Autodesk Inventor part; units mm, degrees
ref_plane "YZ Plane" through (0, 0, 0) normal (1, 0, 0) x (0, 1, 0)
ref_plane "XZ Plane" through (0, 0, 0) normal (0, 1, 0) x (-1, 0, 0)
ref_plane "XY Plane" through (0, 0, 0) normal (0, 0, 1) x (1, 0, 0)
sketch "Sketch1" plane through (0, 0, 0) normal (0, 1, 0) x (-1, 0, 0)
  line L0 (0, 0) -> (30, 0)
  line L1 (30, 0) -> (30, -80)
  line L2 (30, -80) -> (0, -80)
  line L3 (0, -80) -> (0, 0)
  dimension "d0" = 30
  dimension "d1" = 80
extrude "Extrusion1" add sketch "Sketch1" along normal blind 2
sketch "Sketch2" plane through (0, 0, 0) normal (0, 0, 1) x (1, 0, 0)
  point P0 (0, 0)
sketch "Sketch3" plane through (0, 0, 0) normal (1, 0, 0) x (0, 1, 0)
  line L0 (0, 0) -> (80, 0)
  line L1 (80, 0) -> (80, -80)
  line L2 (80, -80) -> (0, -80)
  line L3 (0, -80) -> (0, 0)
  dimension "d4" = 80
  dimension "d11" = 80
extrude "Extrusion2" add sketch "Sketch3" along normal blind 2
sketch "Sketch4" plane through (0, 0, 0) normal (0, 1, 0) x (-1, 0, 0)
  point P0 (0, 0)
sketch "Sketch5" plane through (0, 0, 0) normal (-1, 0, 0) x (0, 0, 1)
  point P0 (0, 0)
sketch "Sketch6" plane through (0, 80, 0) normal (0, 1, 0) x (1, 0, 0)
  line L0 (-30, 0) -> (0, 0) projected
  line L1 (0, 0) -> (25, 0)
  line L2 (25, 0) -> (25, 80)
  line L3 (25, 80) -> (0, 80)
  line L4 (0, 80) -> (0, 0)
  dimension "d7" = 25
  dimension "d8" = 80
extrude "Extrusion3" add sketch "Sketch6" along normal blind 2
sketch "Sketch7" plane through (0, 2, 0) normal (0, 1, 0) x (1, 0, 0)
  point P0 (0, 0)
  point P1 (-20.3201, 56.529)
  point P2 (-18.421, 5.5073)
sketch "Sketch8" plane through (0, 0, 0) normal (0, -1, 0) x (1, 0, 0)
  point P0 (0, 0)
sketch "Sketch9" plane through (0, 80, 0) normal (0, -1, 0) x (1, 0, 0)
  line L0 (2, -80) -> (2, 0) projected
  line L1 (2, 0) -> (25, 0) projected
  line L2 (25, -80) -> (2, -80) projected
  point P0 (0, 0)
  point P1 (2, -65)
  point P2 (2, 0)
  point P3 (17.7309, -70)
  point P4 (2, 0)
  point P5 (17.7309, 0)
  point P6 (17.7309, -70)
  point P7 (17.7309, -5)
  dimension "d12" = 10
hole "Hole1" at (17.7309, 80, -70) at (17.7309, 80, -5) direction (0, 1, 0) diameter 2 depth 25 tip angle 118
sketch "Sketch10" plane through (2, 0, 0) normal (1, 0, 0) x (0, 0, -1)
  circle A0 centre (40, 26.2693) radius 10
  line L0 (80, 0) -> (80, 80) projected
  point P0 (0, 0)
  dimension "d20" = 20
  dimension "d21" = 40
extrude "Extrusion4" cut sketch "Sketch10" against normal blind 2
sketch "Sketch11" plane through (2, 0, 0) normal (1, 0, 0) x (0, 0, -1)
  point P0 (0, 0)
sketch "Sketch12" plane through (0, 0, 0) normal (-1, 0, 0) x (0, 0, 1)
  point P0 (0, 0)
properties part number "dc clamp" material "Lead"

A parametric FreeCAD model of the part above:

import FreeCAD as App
import Part
import Sketcher
Q = App.Units.Quantity

doc = App.newDocument("Part")
body = doc.addObject("PartDesign::Body", "Body")

# Sketch on XZ plane
sketch1 = body.newObject("Sketcher::SketchObject", "Sketch")
sketch1.AttachmentSupport = (doc.getObject("XZ_Plane"), [""])
sketch1.MapMode = "FlatFace"
sketch1.addGeometry([
    Part.LineSegment(App.Vector(-30, 0, 0), App.Vector(0, 0, 0)),
    Part.LineSegment(App.Vector(0, 0, 0), App.Vector(0, -80, 0)),
    Part.LineSegment(App.Vector(0, -80, 0), App.Vector(-30, -80, 0)),
    Part.LineSegment(App.Vector(-30, -80, 0), App.Vector(-30, 0, 0)),
], False)
sketch1.addConstraint([
    Sketcher.Constraint("Coincident", 0, 2, 1, 1),
    Sketcher.Constraint("Coincident", 1, 2, 2, 1),
    Sketcher.Constraint("Coincident", 2, 2, 3, 1),
    Sketcher.Constraint("Coincident", 3, 2, 0, 1),
    Sketcher.Constraint("Horizontal", 0),
    Sketcher.Constraint("Vertical", 1),
    Sketcher.Constraint("Horizontal", 2),
    Sketcher.Constraint("Vertical", 3),
    Sketcher.Constraint("Coincident", 0, 2, -1, 1),
    Sketcher.Constraint("DistanceX", 0, 1, 0, 2, Q("30 mm")),
    Sketcher.Constraint("DistanceY", 1, 2, 1, 1, Q("80 mm")),
])
pad1 = body.newObject("PartDesign::Pad", "Pad")
pad1.Profile = sketch1
pad1.Length = 2
pad1.Reversed = True

# Sketch on YZ plane
sketch2 = body.newObject("Sketcher::SketchObject", "Sketch001")
sketch2.AttachmentSupport = (doc.getObject("YZ_Plane"), [""])
sketch2.MapMode = "FlatFace"
sketch2.addGeometry([
    Part.LineSegment(App.Vector(80, 0, 0), App.Vector(0, 0, 0)),
    Part.LineSegment(App.Vector(0, 0, 0), App.Vector(0, -80, 0)),
    Part.LineSegment(App.Vector(0, -80, 0), App.Vector(80, -80, 0)),
    Part.LineSegment(App.Vector(80, -80, 0), App.Vector(80, 0, 0)),
], False)
sketch2.addConstraint([
    Sketcher.Constraint("Coincident", 0, 2, 1, 1),
    Sketcher.Constraint("Coincident", 1, 2, 2, 1),
    Sketcher.Constraint("Coincident", 2, 2, 3, 1),
    Sketcher.Constraint("Coincident", 3, 2, 0, 1),
    Sketcher.Constraint("Horizontal", 0),
    Sketcher.Constraint("Vertical", 1),
    Sketcher.Constraint("Horizontal", 2),
    Sketcher.Constraint("Vertical", 3),
    Sketcher.Constraint("Coincident", 0, 2, -1, 1),
    Sketcher.Constraint("Equal", 2, 1),
    Sketcher.Constraint("DistanceX", 0, 2, 0, 1, Q("80 mm")),
])
pad2 = body.newObject("PartDesign::Pad", "Pad001")
pad2.Profile = sketch2
pad2.Length = 2

# Sketch on XZ plane
sketch3 = body.newObject("Sketcher::SketchObject", "Sketch002")
sketch3.AttachmentSupport = (doc.getObject("XZ_Plane"), [""])
sketch3.MapMode = "FlatFace"
sketch3.AttachmentOffset = App.Placement(App.Vector(0, 0, -80), App.Rotation())
sketch3.addGeometry([
    Part.LineSegment(App.Vector(0, -80, 0), App.Vector(0, 0, 0)),
    Part.LineSegment(App.Vector(0, 0, 0), App.Vector(25, 0, 0)),
    Part.LineSegment(App.Vector(25, 0, 0), App.Vector(25, -80, 0)),
    Part.LineSegment(App.Vector(25, -80, 0), App.Vector(0, -80, 0)),
], False)
sketch3.addConstraint([
    Sketcher.Constraint("Coincident", 0, 2, 1, 1),
    Sketcher.Constraint("Coincident", 1, 2, 2, 1),
    Sketcher.Constraint("Coincident", 2, 2, 3, 1),
    Sketcher.Constraint("Coincident", 3, 2, 0, 1),
    Sketcher.Constraint("Vertical", 0),
    Sketcher.Constraint("Horizontal", 1),
    Sketcher.Constraint("Vertical", 2),
    Sketcher.Constraint("Horizontal", 3),
    Sketcher.Constraint("Coincident", 0, 2, -1, 1),
    Sketcher.Constraint("DistanceX", 1, 1, 1, 2, Q("25 mm")),
    Sketcher.Constraint("DistanceY", 0, 1, 0, 2, Q("80 mm")),
])
pad3 = body.newObject("PartDesign::Pad", "Pad002")
pad3.Profile = sketch3
pad3.Length = 2
pad3.Reversed = True

# Sketch on XZ plane
sketch4 = body.newObject("Sketcher::SketchObject", "Sketch003")
sketch4.AttachmentSupport = (doc.getObject("XZ_Plane"), [""])
sketch4.MapMode = "FlatFace"
sketch4.AttachmentOffset = App.Placement(App.Vector(0, 0, -80), App.Rotation())
sketch4.addGeometry([
    Part.Circle(App.Vector(17.7, -70, 0), App.Vector(0, 0, 1), 1),
    Part.Circle(App.Vector(17.7, -5, 0), App.Vector(0, 0, 1), 1),
], False)
sketch4.addConstraint([
    Sketcher.Constraint("Equal", 0, 1),
    Sketcher.Constraint("Vertical", 0, 3, 1, 3),
    Sketcher.Constraint("Diameter", 0, Q("2 mm")),
    Sketcher.Constraint("DistanceY", 0, 3, -1, 1, Q("70 mm")),
    Sketcher.Constraint("DistanceY", 1, 3, -1, 1, Q("5 mm")),
    Sketcher.Constraint("DistanceX", -1, 1, 0, 3, Q("17.731 mm")),
])
doc.recompute()
hole = body.newObject("PartDesign::Hole", "Hole")
hole.Profile = sketch4
hole.ThreadType = "None"
hole.Diameter = 2
hole.DepthType = "Dimension"
hole.Depth = 25
hole.DrillPoint = "Angled"
hole.DrillPointAngle = 118

# Sketch on YZ plane
sketch5 = body.newObject("Sketcher::SketchObject", "Sketch004")
sketch5.AttachmentSupport = (doc.getObject("YZ_Plane"), [""])
sketch5.MapMode = "FlatFace"
sketch5.AttachmentOffset = App.Placement(App.Vector(0, 0, 2), App.Rotation())
sketch5.addGeometry(Part.Circle(App.Vector(26, -40, 0), App.Vector(0, 0, 1), 10), False)
sketch5.addConstraint([
    Sketcher.Constraint("Diameter", 0, Q("20 mm")),
    Sketcher.Constraint("DistanceY", 0, 3, -1, 1, Q("40 mm")),
    Sketcher.Constraint("DistanceX", -1, 1, 0, 3, Q("26.2693 mm")),
])
pocket1 = body.newObject("PartDesign::Pocket", "Pocket")
pocket1.Profile = sketch5
pocket1.Length = 2

doc.recompute()
